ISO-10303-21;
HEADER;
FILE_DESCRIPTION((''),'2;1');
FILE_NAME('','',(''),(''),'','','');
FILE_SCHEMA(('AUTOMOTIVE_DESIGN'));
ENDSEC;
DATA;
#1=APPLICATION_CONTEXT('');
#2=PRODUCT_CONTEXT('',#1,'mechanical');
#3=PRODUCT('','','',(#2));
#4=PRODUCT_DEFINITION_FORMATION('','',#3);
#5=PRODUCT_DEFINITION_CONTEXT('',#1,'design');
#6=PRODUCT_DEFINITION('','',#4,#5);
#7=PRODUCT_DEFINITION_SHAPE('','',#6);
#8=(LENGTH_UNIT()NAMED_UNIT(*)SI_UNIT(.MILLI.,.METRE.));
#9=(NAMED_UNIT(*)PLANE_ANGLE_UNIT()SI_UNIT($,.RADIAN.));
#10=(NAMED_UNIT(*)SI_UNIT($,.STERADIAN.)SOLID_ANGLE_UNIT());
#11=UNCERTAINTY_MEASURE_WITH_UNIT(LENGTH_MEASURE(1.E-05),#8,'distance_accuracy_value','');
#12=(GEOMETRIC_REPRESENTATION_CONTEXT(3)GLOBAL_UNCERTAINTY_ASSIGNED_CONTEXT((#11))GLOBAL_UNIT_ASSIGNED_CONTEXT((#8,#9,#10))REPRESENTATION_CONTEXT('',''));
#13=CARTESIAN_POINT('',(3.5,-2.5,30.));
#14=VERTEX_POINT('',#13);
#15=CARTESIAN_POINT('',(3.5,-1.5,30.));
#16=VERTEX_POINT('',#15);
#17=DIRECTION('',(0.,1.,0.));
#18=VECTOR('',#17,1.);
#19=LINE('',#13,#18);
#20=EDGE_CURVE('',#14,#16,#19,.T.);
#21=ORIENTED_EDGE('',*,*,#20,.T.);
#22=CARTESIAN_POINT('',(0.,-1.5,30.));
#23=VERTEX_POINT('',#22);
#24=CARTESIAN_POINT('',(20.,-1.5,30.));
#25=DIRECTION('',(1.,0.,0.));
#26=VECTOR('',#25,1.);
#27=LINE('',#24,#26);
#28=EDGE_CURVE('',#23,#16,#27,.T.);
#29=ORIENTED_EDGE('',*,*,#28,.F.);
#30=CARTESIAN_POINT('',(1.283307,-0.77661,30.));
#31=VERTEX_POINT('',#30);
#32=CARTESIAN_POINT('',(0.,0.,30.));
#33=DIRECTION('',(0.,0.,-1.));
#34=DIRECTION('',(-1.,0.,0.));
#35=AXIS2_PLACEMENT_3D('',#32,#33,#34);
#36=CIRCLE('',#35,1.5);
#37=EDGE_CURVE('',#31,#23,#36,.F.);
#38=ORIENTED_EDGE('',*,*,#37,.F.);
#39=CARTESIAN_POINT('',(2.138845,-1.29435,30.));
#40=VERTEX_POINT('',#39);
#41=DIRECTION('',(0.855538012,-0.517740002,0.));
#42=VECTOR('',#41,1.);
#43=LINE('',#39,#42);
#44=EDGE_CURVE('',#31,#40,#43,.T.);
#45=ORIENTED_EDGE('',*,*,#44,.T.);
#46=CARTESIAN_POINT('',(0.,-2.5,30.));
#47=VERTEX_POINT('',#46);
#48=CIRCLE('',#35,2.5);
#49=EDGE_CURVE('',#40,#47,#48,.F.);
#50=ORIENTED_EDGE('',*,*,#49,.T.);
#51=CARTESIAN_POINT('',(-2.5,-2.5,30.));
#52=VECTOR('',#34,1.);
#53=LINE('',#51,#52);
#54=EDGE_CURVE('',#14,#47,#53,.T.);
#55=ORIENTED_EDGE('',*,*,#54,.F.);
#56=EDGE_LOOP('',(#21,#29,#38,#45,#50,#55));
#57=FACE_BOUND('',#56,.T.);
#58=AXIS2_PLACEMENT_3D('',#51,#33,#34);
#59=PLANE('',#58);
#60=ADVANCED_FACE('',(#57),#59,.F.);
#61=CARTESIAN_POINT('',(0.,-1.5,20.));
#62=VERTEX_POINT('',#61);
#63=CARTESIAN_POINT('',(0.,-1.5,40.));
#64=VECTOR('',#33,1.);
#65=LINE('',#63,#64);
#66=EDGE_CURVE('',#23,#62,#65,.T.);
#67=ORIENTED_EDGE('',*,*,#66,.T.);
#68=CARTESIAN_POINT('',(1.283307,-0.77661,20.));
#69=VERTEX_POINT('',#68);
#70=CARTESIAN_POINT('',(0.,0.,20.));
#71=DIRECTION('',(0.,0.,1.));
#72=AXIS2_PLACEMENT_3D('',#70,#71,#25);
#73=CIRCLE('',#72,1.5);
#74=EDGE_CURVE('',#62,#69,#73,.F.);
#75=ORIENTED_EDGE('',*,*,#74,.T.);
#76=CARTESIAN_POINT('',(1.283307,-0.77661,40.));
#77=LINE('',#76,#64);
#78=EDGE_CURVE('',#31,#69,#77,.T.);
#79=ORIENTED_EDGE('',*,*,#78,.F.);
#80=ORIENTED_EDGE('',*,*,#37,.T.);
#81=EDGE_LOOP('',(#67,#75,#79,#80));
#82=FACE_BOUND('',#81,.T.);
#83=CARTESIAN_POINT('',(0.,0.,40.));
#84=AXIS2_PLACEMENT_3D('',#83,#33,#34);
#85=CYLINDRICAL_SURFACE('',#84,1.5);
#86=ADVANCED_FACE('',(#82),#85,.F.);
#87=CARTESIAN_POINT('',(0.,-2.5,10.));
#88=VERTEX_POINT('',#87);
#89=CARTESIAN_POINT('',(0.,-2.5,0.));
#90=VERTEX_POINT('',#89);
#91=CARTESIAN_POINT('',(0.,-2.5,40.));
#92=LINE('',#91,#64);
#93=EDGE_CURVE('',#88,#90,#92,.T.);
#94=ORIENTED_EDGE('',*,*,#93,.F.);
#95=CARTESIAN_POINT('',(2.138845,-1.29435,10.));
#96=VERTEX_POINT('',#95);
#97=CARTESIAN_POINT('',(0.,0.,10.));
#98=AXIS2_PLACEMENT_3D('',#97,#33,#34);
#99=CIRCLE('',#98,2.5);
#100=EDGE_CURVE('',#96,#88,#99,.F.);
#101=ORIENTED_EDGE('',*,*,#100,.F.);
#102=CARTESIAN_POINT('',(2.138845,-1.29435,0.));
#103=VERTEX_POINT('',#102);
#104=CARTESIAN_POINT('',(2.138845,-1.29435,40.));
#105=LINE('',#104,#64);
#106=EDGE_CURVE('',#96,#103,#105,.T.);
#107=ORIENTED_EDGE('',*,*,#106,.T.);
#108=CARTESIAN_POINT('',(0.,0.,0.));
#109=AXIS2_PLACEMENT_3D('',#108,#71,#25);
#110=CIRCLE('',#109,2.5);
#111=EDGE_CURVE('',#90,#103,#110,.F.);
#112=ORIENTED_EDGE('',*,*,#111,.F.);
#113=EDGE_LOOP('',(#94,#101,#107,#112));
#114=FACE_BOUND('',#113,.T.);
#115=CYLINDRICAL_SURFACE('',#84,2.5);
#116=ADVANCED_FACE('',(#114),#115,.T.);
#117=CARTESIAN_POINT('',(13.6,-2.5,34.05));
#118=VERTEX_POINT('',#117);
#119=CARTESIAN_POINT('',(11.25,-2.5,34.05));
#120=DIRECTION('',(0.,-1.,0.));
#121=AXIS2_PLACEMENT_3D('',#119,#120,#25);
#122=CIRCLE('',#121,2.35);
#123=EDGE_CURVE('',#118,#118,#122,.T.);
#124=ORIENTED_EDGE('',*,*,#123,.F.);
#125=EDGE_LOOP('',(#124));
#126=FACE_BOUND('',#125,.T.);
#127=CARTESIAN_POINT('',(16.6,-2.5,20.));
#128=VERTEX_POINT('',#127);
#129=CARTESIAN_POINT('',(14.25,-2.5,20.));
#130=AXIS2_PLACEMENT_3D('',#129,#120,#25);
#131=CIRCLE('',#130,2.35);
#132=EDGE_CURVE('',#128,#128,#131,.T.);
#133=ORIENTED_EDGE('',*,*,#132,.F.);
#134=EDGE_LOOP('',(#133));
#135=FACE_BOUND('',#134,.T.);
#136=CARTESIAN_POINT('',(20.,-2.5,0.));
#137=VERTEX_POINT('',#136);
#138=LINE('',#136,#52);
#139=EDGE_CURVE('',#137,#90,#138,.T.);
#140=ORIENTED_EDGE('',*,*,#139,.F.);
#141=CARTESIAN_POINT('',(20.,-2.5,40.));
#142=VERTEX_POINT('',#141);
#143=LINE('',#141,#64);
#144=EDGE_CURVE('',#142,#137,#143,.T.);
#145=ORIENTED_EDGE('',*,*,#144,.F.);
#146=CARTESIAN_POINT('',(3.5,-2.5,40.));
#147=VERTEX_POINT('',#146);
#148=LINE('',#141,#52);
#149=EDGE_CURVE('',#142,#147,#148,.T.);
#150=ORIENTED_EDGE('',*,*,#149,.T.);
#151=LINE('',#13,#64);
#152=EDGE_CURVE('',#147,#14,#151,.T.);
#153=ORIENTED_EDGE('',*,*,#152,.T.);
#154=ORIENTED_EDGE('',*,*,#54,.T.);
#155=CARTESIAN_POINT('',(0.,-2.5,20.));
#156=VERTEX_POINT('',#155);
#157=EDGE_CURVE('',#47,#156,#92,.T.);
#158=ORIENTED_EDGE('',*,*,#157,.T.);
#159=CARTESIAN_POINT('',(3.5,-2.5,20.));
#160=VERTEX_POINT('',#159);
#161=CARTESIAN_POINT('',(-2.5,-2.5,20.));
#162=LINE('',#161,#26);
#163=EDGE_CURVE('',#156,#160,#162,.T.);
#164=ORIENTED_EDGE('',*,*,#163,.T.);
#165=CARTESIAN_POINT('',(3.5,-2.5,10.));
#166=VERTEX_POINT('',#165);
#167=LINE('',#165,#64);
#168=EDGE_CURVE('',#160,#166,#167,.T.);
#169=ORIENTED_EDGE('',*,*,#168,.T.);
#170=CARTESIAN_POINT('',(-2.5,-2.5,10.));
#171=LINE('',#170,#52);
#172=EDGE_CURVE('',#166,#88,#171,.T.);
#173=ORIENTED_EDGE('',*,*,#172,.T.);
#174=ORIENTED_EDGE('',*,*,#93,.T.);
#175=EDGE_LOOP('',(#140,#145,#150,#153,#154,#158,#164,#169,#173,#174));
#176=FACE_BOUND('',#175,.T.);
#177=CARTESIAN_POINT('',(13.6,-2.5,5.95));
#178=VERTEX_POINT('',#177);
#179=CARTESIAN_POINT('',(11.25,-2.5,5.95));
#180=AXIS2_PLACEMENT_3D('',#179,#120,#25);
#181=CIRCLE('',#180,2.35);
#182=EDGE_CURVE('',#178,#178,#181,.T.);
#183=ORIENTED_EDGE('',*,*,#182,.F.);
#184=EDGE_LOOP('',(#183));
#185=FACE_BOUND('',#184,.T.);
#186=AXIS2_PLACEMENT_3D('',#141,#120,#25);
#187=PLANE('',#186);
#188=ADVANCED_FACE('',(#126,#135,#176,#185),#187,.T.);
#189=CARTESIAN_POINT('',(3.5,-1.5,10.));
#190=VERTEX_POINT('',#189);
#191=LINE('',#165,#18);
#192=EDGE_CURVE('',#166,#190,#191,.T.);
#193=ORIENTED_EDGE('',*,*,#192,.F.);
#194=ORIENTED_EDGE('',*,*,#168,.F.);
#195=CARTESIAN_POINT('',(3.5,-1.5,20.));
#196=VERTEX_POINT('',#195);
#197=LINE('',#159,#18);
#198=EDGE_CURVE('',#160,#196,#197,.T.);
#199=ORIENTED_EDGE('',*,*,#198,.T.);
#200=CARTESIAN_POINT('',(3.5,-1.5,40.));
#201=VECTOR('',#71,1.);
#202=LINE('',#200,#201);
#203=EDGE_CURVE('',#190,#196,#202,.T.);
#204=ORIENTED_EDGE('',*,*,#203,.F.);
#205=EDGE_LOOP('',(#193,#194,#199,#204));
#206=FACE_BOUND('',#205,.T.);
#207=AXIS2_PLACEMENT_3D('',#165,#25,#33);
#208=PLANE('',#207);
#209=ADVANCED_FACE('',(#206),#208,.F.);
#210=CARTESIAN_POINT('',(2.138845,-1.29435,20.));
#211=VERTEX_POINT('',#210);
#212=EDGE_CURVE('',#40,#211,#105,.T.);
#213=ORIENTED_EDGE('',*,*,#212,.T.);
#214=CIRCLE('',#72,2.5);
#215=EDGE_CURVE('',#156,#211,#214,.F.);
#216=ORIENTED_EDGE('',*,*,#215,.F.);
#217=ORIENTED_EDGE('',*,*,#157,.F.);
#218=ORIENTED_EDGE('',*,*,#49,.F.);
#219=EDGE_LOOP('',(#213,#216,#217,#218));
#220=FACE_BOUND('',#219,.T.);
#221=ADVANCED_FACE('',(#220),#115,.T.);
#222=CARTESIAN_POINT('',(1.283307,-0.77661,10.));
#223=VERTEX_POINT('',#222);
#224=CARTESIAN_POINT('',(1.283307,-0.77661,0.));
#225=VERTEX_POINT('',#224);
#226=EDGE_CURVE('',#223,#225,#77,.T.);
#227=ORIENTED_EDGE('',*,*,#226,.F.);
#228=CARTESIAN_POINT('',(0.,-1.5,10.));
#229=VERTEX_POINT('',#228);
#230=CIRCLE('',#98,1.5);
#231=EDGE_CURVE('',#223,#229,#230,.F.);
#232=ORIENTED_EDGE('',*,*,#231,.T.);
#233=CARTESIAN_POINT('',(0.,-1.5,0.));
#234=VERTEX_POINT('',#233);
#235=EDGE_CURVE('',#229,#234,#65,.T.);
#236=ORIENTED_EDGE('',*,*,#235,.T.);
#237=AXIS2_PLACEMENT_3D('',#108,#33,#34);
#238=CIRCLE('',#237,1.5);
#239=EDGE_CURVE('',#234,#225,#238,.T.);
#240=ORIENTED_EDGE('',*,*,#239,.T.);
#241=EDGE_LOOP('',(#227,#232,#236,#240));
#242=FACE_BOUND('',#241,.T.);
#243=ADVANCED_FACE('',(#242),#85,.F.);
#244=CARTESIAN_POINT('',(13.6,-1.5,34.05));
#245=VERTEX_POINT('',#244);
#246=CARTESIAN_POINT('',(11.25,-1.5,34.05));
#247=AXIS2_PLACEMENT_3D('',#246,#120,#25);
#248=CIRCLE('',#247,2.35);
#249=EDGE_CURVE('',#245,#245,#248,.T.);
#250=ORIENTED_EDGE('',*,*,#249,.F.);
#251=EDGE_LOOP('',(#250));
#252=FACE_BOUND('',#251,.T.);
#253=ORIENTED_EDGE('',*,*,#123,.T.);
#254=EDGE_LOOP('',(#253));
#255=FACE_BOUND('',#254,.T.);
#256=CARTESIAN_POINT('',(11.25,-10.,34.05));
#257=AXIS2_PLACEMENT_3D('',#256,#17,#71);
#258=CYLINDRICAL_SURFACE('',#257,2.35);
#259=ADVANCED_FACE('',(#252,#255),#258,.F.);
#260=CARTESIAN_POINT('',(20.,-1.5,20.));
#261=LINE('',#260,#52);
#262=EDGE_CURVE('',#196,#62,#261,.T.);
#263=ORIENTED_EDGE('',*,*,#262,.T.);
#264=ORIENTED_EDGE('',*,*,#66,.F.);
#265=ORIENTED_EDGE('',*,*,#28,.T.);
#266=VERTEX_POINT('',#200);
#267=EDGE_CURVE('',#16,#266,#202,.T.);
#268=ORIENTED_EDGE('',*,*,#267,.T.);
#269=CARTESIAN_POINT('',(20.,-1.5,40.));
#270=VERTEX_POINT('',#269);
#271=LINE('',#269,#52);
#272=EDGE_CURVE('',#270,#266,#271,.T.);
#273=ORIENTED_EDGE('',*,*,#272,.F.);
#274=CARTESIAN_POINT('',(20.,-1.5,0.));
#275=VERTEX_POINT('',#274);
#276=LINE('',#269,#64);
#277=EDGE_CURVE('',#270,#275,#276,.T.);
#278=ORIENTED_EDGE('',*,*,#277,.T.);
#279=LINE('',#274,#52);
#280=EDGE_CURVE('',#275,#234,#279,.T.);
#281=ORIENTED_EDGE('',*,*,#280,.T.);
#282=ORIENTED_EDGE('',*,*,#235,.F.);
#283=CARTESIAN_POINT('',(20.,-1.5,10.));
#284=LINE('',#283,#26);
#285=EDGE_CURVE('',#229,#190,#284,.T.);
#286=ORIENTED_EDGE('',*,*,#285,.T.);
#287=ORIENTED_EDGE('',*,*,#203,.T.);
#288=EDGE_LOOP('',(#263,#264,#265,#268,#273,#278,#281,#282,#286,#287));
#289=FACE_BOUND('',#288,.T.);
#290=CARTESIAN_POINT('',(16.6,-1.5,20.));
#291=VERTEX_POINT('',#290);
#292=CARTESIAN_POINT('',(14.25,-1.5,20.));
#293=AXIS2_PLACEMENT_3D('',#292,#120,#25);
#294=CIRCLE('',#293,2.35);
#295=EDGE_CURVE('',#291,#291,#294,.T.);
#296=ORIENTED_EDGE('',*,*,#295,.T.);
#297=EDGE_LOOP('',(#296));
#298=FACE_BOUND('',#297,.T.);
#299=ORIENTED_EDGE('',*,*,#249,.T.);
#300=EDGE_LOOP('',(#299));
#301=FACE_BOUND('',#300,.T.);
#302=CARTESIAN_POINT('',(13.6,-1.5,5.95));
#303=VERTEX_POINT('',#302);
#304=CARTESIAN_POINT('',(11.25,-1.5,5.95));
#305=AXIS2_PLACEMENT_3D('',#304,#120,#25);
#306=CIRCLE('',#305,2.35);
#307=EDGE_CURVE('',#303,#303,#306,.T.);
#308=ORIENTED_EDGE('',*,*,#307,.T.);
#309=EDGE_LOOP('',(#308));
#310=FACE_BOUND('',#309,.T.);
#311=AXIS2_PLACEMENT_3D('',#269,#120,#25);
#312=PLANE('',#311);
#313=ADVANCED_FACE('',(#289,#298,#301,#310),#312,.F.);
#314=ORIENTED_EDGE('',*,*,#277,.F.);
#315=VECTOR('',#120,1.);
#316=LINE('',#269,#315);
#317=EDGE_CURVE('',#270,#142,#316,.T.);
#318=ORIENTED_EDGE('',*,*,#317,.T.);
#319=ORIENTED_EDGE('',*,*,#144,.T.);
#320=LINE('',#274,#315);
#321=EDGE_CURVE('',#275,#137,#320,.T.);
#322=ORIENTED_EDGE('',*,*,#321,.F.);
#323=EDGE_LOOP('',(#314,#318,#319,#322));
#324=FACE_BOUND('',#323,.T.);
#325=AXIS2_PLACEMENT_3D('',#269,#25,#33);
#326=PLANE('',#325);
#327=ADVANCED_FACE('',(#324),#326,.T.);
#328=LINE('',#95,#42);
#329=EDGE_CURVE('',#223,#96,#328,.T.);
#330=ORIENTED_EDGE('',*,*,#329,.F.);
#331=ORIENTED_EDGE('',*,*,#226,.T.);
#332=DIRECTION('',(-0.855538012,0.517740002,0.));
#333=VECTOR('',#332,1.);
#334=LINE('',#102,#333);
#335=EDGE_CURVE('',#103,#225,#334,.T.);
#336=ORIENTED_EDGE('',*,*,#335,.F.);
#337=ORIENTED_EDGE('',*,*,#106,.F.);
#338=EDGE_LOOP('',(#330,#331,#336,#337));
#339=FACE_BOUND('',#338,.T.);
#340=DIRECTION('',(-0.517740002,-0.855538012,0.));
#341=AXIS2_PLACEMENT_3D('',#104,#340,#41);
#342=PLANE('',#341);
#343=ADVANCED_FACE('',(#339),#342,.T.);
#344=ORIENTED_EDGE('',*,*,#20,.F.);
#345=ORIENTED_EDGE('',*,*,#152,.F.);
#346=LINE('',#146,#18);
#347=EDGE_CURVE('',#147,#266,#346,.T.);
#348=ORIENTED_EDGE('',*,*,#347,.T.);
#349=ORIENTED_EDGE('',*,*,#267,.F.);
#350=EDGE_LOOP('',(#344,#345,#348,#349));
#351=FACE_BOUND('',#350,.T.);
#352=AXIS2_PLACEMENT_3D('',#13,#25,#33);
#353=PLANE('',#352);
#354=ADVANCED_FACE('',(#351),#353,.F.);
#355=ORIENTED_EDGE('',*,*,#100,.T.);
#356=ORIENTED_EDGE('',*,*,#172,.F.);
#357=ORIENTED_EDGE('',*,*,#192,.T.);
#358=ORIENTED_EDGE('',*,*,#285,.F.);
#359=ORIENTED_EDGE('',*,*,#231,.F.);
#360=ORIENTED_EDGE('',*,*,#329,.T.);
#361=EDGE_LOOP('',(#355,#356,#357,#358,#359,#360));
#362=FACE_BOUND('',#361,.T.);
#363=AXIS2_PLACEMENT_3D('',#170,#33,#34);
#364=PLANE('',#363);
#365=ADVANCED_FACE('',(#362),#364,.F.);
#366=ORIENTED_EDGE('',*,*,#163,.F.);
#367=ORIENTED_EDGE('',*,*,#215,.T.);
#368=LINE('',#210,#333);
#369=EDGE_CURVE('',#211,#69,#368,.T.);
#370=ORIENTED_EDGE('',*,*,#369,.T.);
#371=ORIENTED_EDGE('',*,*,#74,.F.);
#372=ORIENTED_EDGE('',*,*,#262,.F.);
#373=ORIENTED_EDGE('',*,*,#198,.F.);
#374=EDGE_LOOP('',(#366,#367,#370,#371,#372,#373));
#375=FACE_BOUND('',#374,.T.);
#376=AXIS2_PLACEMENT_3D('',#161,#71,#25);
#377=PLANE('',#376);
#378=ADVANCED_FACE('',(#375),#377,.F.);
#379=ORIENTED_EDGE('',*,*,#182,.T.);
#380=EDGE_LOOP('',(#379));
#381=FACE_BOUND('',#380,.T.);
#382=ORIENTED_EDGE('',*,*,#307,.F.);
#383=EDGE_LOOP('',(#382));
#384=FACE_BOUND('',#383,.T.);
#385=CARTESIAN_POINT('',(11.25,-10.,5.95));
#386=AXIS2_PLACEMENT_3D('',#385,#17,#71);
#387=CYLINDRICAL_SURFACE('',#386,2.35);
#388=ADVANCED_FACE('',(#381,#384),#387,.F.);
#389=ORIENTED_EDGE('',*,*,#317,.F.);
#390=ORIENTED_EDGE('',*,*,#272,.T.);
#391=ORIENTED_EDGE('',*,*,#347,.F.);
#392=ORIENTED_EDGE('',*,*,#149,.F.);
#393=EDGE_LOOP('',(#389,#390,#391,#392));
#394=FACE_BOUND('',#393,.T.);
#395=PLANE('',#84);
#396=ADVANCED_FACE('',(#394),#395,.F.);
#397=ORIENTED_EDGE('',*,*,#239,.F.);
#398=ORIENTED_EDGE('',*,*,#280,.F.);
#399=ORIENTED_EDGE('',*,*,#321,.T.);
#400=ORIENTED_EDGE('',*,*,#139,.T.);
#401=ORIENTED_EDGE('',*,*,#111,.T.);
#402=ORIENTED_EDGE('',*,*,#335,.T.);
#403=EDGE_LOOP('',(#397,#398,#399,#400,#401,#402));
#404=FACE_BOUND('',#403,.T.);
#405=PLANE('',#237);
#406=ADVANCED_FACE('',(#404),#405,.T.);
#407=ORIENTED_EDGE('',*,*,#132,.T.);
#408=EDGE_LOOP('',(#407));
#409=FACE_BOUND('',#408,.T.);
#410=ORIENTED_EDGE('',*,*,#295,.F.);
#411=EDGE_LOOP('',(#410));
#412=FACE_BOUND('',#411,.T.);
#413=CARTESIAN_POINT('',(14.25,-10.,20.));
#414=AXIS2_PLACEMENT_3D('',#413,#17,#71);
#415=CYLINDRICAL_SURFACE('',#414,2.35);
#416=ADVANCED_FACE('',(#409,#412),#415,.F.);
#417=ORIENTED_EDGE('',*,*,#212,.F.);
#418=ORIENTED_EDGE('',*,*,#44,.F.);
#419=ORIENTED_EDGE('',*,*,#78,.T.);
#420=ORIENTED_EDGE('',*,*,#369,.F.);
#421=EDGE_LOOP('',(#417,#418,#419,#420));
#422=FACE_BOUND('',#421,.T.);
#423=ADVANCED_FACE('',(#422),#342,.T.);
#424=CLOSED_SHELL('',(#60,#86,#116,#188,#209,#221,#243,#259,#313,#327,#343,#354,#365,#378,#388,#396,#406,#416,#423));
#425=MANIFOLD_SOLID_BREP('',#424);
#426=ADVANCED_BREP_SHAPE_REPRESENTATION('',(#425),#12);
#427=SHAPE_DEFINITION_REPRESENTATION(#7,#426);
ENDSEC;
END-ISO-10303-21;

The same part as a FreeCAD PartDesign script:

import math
import FreeCAD as App
import Part
import Sketcher

V = App.Vector
Q = App.Units.Quantity

doc = App.newDocument("Part")
body = doc.addObject("PartDesign::Body", "Body")

# Sketch on XY plane
sketch1 = body.newObject("Sketcher::SketchObject", "Sketch")
sketch1.AttachmentSupport = (doc.getObject("XY_Plane"), [""])
sketch1.MapMode = "FlatFace"
sketch1.addGeometry([
    Part.LineSegment(V(20, -1.5, 0), V(0, -1.5, 0)),  # 0
    Part.ArcOfCircle(Part.Circle(V(0, 0, 0), V(0, 0, 1), 1.5), math.radians(-31), math.radians(270)),  # 1
    Part.LineSegment(V(1.3, -0.8, 0), V(2.1, -1.3, 0)),  # 2
    Part.ArcOfCircle(Part.Circle(V(0, 0, 0), V(0, 0, 1), 2.5), math.radians(-31), math.radians(270)),  # 3
    Part.LineSegment(V(0, -2.5, 0), V(20, -2.5, 0)),  # 4
    Part.LineSegment(V(20, -2.5, 0), V(20, -1.5, 0)),  # 5
], False)
sketch1.addConstraint([
    Sketcher.Constraint("Tangent", 0, 2, 1, 2),
    Sketcher.Constraint("Coincident", 1, 1, 2, 1),
    Sketcher.Constraint("Coincident", 2, 2, 3, 1),
    Sketcher.Constraint("Tangent", 3, 2, 4, 1),
    Sketcher.Constraint("Coincident", 4, 2, 5, 1),
    Sketcher.Constraint("Coincident", 5, 2, 0, 1),
    Sketcher.Constraint("Horizontal", 0),
    Sketcher.Constraint("Horizontal", 4),
    Sketcher.Constraint("Vertical", 5),
    Sketcher.Constraint("Coincident", 1, 3, -1, 1),
    Sketcher.Constraint("Coincident", 3, 3, -1, 1),
    Sketcher.Constraint("Radius", 1, Q("1.5 mm")),
    Sketcher.Constraint("Radius", 3, Q("2.5 mm")),
    Sketcher.Constraint("DistanceX", 0, 2, 0, 1, Q("20 mm")),
    Sketcher.Constraint("DistanceY", 1, 1, -1, 1, Q("0.77661 mm")),
    Sketcher.Constraint("DistanceY", 2, 2, -1, 1, Q("1.29435 mm")),
])
pad1 = body.newObject("PartDesign::Pad", "Pad")
pad1.Profile = sketch1
pad1.Length = 40

# Sketch on XZ plane
sketch2 = body.newObject("Sketcher::SketchObject", "Sketch001")
sketch2.AttachmentSupport = (doc.getObject("XZ_Plane"), [""])
sketch2.MapMode = "FlatFace"
sketch2.addGeometry([
    Part.LineSegment(V(-2, 10, 0), V(-2, 20, 0)),  # 0
    Part.LineSegment(V(-2, 20, 0), V(4, 20, 0)),  # 1
    Part.LineSegment(V(4, 20, 0), V(4, 10, 0)),  # 2
    Part.LineSegment(V(4, 10, 0), V(-2, 10, 0)),  # 3
    Part.LineSegment(V(-2, 30, 0), V(-2, 40, 0)),  # 4
    Part.LineSegment(V(-2, 40, 0), V(4, 40, 0)),  # 5
    Part.LineSegment(V(4, 40, 0), V(4, 30, 0)),  # 6
    Part.LineSegment(V(4, 30, 0), V(-2, 30, 0)),  # 7
], False)
sketch2.addConstraint([
    Sketcher.Constraint("Coincident", 0, 2, 1, 1),
    Sketcher.Constraint("Coincident", 1, 2, 2, 1),
    Sketcher.Constraint("Coincident", 2, 2, 3, 1),
    Sketcher.Constraint("Coincident", 3, 2, 0, 1),
    Sketcher.Constraint("Coincident", 4, 2, 5, 1),
    Sketcher.Constraint("Coincident", 5, 2, 6, 1),
    Sketcher.Constraint("Coincident", 6, 2, 7, 1),
    Sketcher.Constraint("Coincident", 7, 2, 4, 1),
    Sketcher.Constraint("Vertical", 0),
    Sketcher.Constraint("Horizontal", 1),
    Sketcher.Constraint("Vertical", 2),
    Sketcher.Constraint("Horizontal", 3),
    Sketcher.Constraint("Vertical", 4),
    Sketcher.Constraint("Horizontal", 5),
    Sketcher.Constraint("Vertical", 6),
    Sketcher.Constraint("Horizontal", 7),
    Sketcher.Constraint("Vertical", 3, 2, 4, 2),
    Sketcher.Constraint("Vertical", 2, 2, 5, 2),
    Sketcher.Constraint("Equal", 2, 4),
    Sketcher.Constraint("DistanceX", 1, 1, 1, 2, Q("6 mm")),
    Sketcher.Constraint("DistanceY", 0, 1, 0, 2, Q("10 mm")),
    Sketcher.Constraint("DistanceY", -1, 1, 0, 2, Q("20 mm")),
    Sketcher.Constraint("DistanceY", -1, 1, 4, 2, Q("40 mm")),
    Sketcher.Constraint("DistanceX", 0, 2, -1, 1, Q("2.5 mm")),
])
pocket1 = body.newObject("PartDesign::Pocket", "Pocket")
pocket1.Profile = sketch2
pocket1.Type = "ThroughAll"
pocket1.Midplane = True

# Sketch on XZ plane
sketch3 = body.newObject("Sketcher::SketchObject", "Sketch002")
sketch3.AttachmentSupport = (doc.getObject("XZ_Plane"), [""])
sketch3.MapMode = "FlatFace"
sketch3.addGeometry([
    Part.Circle(V(14.2, 20, 0), V(0, 0, 1), 2.4),
    Part.Circle(V(11.2, 34, 0), V(0, 0, 1), 2.4),
    Part.Circle(V(11.2, 6, 0), V(0, 0, 1), 2.4),
], False)
sketch3.addConstraint([
    Sketcher.Constraint("Equal", 0, 1),
    Sketcher.Constraint("Equal", 1, 2),
    Sketcher.Constraint("Vertical", 1, 3, 2, 3),
    Sketcher.Constraint("Diameter", 0, Q("4.7 mm")),
    Sketcher.Constraint("DistanceY", -1, 1, 0, 3, Q("20 mm")),
    Sketcher.Constraint("DistanceX", 1, 3, 0, 3, Q("3 mm")),
    Sketcher.Constraint("DistanceY", 2, 3, 1, 3, Q("28.1 mm")),
    Sketcher.Constraint("DistanceX", -1, 1, 0, 3, Q("14.25 mm")),
    Sketcher.Constraint("DistanceY", -1, 1, 1, 3, Q("34.05 mm")),
])
pocket2 = body.newObject("PartDesign::Pocket", "Pocket001")
pocket2.Profile = sketch3
pocket2.Length = 10
pocket2.Reversed = True

doc.recompute()
